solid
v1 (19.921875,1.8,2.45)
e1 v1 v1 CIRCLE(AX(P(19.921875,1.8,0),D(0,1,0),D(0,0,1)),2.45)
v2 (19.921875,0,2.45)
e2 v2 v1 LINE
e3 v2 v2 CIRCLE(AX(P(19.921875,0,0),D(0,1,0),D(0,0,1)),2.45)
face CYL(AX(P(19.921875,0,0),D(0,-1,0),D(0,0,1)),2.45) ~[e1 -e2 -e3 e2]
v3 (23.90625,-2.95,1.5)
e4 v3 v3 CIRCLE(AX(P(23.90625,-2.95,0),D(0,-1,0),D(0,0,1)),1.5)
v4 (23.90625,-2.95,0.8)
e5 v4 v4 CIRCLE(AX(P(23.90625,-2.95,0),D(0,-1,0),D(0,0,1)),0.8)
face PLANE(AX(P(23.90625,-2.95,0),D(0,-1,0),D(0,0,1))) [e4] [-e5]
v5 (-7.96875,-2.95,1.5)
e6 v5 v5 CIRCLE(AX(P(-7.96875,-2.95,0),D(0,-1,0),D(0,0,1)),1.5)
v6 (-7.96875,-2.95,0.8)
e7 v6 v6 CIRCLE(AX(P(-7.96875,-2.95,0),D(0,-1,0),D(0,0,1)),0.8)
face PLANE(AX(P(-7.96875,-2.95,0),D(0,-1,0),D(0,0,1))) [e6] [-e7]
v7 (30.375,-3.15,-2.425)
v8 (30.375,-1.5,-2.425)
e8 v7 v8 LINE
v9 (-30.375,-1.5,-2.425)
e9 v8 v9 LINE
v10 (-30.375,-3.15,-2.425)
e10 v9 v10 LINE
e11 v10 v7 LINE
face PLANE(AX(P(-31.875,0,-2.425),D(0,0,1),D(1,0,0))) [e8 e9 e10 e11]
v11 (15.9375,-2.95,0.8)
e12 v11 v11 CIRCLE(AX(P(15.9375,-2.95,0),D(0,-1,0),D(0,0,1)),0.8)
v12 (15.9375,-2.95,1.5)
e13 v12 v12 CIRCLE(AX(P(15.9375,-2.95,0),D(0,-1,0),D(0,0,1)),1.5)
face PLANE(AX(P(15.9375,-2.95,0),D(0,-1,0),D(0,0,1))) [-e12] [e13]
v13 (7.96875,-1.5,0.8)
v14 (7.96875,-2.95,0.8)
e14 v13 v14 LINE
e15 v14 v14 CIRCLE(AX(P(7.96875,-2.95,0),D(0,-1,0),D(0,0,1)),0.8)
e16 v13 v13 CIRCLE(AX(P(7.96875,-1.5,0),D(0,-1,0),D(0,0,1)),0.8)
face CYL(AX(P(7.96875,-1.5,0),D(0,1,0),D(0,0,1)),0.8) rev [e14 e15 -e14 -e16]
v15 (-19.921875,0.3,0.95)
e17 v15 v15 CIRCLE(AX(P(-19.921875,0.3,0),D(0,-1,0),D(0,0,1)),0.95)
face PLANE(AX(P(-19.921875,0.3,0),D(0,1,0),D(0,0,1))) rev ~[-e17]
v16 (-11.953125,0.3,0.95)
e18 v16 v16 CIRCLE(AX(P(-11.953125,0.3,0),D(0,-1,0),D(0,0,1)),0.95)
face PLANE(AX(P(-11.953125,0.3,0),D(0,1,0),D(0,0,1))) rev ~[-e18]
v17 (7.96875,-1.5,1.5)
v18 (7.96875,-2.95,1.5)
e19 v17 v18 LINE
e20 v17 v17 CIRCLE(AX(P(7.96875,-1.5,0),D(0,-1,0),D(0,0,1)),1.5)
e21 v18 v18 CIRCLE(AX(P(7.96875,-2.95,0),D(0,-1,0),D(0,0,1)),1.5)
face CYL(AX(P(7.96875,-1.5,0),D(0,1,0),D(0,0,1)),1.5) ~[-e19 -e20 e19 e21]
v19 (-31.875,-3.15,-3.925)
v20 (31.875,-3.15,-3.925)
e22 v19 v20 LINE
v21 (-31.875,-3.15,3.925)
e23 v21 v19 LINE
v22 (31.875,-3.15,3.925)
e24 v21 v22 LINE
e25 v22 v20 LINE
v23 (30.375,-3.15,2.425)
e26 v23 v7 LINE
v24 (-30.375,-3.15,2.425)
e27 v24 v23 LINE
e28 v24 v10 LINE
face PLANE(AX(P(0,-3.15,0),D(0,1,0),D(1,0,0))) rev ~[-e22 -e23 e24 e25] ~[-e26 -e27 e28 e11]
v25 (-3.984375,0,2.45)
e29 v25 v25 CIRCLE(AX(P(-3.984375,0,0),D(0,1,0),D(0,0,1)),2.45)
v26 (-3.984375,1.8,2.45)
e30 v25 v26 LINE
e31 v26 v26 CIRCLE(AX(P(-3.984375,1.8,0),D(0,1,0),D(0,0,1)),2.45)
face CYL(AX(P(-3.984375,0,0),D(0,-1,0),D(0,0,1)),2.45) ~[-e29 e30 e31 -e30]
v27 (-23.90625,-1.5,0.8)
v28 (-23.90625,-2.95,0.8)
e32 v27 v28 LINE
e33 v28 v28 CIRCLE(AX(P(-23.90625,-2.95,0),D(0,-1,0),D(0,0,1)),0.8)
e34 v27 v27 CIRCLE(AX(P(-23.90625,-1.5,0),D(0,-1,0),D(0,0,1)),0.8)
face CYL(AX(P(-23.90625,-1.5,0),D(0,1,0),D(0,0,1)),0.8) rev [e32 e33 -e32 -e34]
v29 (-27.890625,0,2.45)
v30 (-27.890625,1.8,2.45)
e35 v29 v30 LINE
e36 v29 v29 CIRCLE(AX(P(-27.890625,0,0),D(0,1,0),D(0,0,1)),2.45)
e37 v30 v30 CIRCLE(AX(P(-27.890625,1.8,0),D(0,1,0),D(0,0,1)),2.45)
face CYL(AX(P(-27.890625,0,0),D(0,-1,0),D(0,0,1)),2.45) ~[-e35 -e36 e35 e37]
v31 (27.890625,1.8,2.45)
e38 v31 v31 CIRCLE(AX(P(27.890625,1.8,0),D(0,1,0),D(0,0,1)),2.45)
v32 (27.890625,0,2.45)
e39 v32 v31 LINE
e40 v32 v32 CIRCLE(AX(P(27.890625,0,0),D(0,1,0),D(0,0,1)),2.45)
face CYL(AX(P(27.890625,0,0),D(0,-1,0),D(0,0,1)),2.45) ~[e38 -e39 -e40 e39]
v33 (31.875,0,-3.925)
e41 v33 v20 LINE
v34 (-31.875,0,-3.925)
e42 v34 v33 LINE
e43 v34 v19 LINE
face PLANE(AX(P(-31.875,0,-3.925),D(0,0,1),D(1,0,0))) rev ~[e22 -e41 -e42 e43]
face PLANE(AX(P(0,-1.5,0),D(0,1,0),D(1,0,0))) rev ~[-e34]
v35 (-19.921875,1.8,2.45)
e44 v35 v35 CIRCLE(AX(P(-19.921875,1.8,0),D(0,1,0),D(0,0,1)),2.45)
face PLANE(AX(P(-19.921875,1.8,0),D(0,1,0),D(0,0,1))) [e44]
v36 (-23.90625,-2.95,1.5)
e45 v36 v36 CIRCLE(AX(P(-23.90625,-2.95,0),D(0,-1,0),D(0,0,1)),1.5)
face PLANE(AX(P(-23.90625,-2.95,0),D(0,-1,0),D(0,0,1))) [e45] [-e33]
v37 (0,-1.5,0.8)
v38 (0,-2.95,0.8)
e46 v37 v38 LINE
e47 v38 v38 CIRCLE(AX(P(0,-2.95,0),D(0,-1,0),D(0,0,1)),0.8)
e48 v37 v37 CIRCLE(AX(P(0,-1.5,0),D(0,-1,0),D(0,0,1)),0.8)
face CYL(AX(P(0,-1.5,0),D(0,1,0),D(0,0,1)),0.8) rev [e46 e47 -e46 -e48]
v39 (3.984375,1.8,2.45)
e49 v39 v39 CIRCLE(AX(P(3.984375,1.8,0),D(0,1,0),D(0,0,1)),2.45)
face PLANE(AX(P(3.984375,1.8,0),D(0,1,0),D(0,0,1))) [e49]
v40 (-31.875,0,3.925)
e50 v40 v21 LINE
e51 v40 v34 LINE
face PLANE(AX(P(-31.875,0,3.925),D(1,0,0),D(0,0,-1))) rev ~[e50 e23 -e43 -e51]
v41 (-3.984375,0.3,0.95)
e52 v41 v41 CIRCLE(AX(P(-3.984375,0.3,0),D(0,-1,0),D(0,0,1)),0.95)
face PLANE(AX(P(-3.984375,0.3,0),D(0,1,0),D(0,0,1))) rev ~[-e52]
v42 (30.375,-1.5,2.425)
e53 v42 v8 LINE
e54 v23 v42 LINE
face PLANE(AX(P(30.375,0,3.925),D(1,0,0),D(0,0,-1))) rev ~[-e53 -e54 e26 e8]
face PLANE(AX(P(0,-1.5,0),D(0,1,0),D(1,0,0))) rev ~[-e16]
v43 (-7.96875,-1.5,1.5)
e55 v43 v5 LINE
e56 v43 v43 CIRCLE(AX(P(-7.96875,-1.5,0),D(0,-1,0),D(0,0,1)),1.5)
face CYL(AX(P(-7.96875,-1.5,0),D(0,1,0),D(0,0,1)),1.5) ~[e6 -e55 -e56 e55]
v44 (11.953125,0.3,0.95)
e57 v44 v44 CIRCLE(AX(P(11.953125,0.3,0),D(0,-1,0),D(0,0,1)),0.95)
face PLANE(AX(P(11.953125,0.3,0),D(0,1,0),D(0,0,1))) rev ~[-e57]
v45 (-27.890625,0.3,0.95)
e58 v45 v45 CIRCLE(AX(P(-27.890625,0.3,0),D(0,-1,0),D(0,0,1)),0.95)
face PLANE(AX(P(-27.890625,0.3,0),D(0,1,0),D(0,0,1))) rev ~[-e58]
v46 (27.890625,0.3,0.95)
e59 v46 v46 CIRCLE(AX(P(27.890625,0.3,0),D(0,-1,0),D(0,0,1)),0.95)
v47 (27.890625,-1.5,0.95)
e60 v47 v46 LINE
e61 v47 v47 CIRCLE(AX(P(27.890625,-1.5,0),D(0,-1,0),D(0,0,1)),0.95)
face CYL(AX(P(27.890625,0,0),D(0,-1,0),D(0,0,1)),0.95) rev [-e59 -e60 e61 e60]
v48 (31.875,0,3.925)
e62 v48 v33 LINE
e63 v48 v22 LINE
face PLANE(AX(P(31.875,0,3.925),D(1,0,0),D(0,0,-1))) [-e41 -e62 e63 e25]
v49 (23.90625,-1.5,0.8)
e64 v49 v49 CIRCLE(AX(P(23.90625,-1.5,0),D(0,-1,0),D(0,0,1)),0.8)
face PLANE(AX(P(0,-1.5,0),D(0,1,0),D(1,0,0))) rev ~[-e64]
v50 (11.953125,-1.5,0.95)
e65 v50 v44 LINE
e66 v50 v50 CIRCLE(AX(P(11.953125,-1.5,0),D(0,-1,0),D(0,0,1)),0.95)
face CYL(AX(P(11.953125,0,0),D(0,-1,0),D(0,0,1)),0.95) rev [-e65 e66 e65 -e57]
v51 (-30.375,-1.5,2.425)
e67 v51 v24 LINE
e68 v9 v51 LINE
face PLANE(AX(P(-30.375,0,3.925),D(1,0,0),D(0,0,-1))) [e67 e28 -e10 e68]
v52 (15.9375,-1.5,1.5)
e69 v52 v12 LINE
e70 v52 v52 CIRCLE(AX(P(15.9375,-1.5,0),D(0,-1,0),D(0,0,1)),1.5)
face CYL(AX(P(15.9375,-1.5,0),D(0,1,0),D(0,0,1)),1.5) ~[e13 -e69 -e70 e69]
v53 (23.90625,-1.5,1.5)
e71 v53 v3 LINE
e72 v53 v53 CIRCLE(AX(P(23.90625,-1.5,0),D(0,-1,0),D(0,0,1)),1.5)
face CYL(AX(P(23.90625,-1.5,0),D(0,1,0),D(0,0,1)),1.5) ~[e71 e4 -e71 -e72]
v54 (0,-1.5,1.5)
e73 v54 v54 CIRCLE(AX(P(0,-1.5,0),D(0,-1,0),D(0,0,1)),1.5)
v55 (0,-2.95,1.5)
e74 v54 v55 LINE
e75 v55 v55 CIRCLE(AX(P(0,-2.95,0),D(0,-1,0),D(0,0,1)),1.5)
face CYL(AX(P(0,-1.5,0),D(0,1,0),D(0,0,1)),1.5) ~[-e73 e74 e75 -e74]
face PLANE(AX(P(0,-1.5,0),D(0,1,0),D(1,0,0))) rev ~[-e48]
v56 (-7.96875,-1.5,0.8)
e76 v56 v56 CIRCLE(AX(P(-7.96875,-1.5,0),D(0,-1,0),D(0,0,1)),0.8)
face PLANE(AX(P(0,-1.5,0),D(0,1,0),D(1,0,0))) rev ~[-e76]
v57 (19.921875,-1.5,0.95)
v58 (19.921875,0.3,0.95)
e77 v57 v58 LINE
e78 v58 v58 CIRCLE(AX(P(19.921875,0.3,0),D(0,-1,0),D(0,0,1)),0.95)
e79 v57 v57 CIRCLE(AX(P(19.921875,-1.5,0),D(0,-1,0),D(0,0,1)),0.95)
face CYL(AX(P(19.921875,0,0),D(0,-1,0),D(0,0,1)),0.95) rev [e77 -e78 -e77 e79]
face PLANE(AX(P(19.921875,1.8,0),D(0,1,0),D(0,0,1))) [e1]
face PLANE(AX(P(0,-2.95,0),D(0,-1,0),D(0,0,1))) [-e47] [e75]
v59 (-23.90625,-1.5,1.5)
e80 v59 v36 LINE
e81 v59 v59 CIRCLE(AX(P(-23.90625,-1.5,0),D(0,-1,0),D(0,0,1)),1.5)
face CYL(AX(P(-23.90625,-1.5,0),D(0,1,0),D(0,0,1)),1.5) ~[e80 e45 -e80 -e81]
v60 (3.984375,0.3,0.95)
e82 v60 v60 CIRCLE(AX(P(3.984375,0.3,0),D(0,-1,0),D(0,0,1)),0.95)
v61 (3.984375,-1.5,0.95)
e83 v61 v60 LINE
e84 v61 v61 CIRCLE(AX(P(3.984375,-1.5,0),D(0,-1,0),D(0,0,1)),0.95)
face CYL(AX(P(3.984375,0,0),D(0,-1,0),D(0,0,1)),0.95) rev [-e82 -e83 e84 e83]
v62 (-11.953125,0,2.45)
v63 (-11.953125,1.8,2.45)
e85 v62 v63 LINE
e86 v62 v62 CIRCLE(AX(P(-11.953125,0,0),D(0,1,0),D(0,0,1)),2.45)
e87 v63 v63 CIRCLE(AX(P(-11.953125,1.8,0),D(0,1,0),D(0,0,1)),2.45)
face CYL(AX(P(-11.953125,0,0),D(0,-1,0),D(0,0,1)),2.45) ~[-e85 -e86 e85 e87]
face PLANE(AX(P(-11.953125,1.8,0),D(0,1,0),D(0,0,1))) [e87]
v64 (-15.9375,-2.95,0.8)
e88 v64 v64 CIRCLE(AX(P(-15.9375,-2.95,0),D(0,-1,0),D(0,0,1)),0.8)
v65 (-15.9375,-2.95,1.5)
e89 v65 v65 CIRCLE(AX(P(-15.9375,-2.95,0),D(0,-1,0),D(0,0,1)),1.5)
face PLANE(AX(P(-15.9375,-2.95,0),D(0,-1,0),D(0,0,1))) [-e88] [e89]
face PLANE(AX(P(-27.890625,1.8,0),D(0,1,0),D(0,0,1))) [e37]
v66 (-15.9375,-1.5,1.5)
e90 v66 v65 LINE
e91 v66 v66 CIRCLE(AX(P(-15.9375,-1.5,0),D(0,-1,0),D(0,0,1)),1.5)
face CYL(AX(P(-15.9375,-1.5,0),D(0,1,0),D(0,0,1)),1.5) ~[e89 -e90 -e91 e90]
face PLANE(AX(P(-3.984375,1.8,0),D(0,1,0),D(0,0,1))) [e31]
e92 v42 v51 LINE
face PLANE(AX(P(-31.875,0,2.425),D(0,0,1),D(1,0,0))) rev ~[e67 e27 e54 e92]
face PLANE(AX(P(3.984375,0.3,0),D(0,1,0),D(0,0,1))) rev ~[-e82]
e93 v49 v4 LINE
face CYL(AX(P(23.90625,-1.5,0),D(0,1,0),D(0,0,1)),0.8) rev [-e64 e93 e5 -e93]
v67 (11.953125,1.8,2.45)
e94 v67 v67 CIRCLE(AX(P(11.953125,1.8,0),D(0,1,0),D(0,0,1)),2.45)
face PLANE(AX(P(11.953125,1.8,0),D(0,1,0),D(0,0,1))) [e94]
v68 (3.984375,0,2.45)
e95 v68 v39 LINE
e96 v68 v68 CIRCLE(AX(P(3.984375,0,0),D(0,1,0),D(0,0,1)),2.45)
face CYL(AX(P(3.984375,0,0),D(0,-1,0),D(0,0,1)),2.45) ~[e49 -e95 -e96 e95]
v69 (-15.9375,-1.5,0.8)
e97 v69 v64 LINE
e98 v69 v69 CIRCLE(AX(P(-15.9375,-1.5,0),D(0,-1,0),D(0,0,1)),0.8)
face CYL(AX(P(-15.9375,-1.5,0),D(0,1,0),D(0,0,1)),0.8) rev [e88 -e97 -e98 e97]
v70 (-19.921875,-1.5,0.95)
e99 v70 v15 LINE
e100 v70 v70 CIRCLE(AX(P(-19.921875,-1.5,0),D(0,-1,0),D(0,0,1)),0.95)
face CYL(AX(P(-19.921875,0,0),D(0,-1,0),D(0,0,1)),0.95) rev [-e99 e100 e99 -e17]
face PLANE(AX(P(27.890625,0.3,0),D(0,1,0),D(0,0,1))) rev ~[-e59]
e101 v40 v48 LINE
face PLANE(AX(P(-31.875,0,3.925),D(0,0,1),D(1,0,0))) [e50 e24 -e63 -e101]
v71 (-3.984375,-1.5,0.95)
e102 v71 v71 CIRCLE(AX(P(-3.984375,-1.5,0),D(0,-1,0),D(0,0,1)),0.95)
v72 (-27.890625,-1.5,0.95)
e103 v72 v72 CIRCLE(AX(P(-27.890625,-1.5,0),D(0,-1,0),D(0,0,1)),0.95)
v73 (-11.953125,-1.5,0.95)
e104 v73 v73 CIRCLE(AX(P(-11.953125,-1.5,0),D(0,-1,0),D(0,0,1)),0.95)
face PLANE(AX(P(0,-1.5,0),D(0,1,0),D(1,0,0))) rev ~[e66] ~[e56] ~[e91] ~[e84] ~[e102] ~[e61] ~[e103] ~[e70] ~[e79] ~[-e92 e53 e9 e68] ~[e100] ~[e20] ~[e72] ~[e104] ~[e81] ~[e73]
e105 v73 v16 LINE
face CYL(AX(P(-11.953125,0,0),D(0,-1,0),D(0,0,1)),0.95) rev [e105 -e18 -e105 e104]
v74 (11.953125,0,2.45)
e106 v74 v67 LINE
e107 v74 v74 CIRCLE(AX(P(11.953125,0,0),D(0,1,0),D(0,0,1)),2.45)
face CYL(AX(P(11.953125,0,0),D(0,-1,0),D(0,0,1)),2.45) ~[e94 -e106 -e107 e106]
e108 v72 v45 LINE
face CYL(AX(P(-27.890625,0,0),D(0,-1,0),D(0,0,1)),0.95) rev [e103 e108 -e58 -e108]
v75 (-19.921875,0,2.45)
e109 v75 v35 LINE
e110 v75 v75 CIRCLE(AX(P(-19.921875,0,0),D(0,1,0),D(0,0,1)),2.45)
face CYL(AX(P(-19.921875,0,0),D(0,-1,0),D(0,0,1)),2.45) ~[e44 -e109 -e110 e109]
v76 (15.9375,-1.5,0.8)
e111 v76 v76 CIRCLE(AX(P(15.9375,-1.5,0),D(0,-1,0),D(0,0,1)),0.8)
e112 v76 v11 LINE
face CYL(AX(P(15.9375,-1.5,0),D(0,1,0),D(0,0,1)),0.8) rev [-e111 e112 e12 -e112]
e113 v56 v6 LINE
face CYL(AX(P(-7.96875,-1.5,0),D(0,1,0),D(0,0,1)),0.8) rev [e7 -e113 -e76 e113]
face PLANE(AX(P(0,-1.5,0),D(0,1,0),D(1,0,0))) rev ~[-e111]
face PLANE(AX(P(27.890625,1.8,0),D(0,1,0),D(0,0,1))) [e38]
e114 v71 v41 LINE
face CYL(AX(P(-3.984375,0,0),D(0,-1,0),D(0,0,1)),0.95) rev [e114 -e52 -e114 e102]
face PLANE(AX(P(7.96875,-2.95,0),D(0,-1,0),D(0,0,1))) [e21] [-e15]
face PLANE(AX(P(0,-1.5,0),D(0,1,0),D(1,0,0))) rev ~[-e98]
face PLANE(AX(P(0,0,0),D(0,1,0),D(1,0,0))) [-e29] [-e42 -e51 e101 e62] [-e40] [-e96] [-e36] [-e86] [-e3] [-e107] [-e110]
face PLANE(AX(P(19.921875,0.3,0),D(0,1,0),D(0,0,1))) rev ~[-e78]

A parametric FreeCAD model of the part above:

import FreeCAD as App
import Part
import Sketcher
Q = App.Units.Quantity


def faces_at(feature, points):
    """Names of the faces that lie closest to the given points."""
    faces = feature.Shape.Faces
    near = lambda p: min(range(len(faces)), key=lambda i: faces[i].distToShape(Part.Vertex(*p))[0])
    return sorted({f"Face{near(p) + 1}" for p in points})


def add_polygon(sketch, points):
    """Adds a closed chain of lines whose ends are joined by coincident constraints."""
    first, n = sketch.GeometryCount, len(points)
    for a, b in zip(points, points[1:] + points[:1]):
        sketch.addGeometry(Part.LineSegment(App.Vector(*a, 0), App.Vector(*b, 0)), False)
    for i in range(n):
        sketch.addConstraint(Sketcher.Constraint("Coincident", first + i, 2, first + (i + 1) % n, 1))

doc = App.newDocument("Part")
body = doc.addObject("PartDesign::Body", "Body")

sketch1 = body.newObject("Sketcher::SketchObject", "Sketch")
sketch1.AttachmentSupport = (doc.getObject("XZ_Plane"), [""])
sketch1.MapMode = "FlatFace"
add_polygon(sketch1, [(-31.875, -3.925), (-31.875, 3.925), (31.875, 3.925), (31.875, -3.925)])
sketch1.addConstraint(Sketcher.Constraint("Vertical", 0))
sketch1.addConstraint(Sketcher.Constraint("Horizontal", 1))
sketch1.addConstraint(Sketcher.Constraint("Vertical", 2))
sketch1.addConstraint(Sketcher.Constraint("Horizontal", 3))
sketch1.addConstraint(Sketcher.Constraint("Symmetric", 0, 2, 2, 2, -1, 1))
sketch1.addConstraint(Sketcher.Constraint("DistanceX", 1, 1, 1, 2, Q("63.75 mm")))
sketch1.addConstraint(Sketcher.Constraint("DistanceY", 0, 1, 0, 2, Q("7.85 mm")))
pad1 = body.newObject("PartDesign::Pad", "Pad")
pad1.Profile = sketch1
pad1.Length = 3.15

sketch2 = body.newObject("Sketcher::SketchObject", "Sketch001")
sketch2.AttachmentSupport = (doc.getObject("XZ_Plane"), [""])
sketch2.MapMode = "FlatFace"
sketch2.addGeometry(Part.Circle(App.Vector(-27.890625, 0, 0), App.Vector(0, 0, 1), 2.45), False)
sketch2.addGeometry(Part.Circle(App.Vector(-19.921875, 0, 0), App.Vector(0, 0, 1), 2.45), False)
sketch2.addGeometry(Part.Circle(App.Vector(-11.953125, 0, 0), App.Vector(0, 0, 1), 2.45), False)
sketch2.addGeometry(Part.Circle(App.Vector(-3.984375, 0, 0), App.Vector(0, 0, 1), 2.45), False)
sketch2.addGeometry(Part.Circle(App.Vector(3.984375, 0, 0), App.Vector(0, 0, 1), 2.45), False)
sketch2.addGeometry(Part.Circle(App.Vector(11.953125, 0, 0), App.Vector(0, 0, 1), 2.45), False)
sketch2.addGeometry(Part.Circle(App.Vector(19.921875, 0, 0), App.Vector(0, 0, 1), 2.45), False)
sketch2.addGeometry(Part.Circle(App.Vector(27.890625, 0, 0), App.Vector(0, 0, 1), 2.45), False)
sketch2.addConstraint(Sketcher.Constraint("Equal", 0, 1))
sketch2.addConstraint(Sketcher.Constraint("Equal", 1, 2))
sketch2.addConstraint(Sketcher.Constraint("Equal", 2, 3))
sketch2.addConstraint(Sketcher.Constraint("Equal", 3, 4))
sketch2.addConstraint(Sketcher.Constraint("Equal", 4, 5))
sketch2.addConstraint(Sketcher.Constraint("Equal", 5, 6))
sketch2.addConstraint(Sketcher.Constraint("Equal", 6, 7))
sketch2.addConstraint(Sketcher.Constraint("Symmetric", 3, 3, 4, 3, -1, 1))
sketch2.addConstraint(Sketcher.Constraint("Symmetric", 2, 3, 5, 3, -1, 1))
sketch2.addConstraint(Sketcher.Constraint("Symmetric", 1, 3, 6, 3, -1, 1))
sketch2.addConstraint(Sketcher.Constraint("Symmetric", 0, 3, 7, 3, -1, 1))
sketch2.addConstraint(Sketcher.Constraint("PointOnObject", 0, 3, -1))
sketch2.addConstraint(Sketcher.Constraint("PointOnObject", 1, 3, -1))
sketch2.addConstraint(Sketcher.Constraint("PointOnObject", 2, 3, -1))
sketch2.addConstraint(Sketcher.Constraint("PointOnObject", 3, 3, -1))
sketch2.addConstraint(Sketcher.Constraint("Diameter", 0, Q("4.9 mm")))
sketch2.addConstraint(Sketcher.Constraint("DistanceX", 0, 3, 4, 3, Q("31.875 mm")))
sketch2.addConstraint(Sketcher.Constraint("DistanceX", 1, 3, 5, 3, Q("31.875 mm")))
sketch2.addConstraint(Sketcher.Constraint("DistanceX", 0, 3, 2, 3, Q("15.9375 mm")))
sketch2.addConstraint(Sketcher.Constraint("DistanceX", 0, 3, 1, 3, Q("7.96875 mm")))
pad2 = body.newObject("PartDesign::Pad", "Pad001")
pad2.Profile = sketch2
pad2.Length = 1.8
pad2.Reversed = True
doc.recompute()

thickness = body.newObject("PartDesign::Thickness", "Thickness")
thickness.Base = (pad2, faces_at(pad2, [(0, -3.15, 0)]))
thickness.Value = 1.5
thickness.Reversed = True
thickness.Join = "Intersection"

sketch3 = body.newObject("Sketcher::SketchObject", "Sketch002")
sketch3.AttachmentSupport = (doc.getObject("XZ_Plane"), [""])
sketch3.MapMode = "FlatFace"
sketch3.AttachmentOffset = App.Placement(App.Vector(0, 0, 1.5), App.Rotation())
sketch3.addGeometry(Part.Circle(App.Vector(-23.90625, 0, 0), App.Vector(0, 0, 1), 1.5), False)
sketch3.addGeometry(Part.Circle(App.Vector(-23.90625, 0, 0), App.Vector(0, 0, 1), 0.8), False)
sketch3.addGeometry(Part.Circle(App.Vector(-15.9375, 0, 0), App.Vector(0, 0, 1), 1.5), False)
sketch3.addGeometry(Part.Circle(App.Vector(-15.9375, 0, 0), App.Vector(0, 0, 1), 0.8), False)
sketch3.addGeometry(Part.Circle(App.Vector(-7.96875, 0, 0), App.Vector(0, 0, 1), 1.5), False)
sketch3.addGeometry(Part.Circle(App.Vector(-7.96875, 0, 0), App.Vector(0, 0, 1), 0.8), False)
sketch3.addGeometry(Part.Circle(App.Vector(0, 0, 0), App.Vector(0, 0, 1), 1.5), False)
sketch3.addGeometry(Part.Circle(App.Vector(0, 0, 0), App.Vector(0, 0, 1), 0.8), False)
sketch3.addGeometry(Part.Circle(App.Vector(7.96875, 0, 0), App.Vector(0, 0, 1), 1.5), False)
sketch3.addGeometry(Part.Circle(App.Vector(7.96875, 0, 0), App.Vector(0, 0, 1), 0.8), False)
sketch3.addGeometry(Part.Circle(App.Vector(15.9375, 0, 0), App.Vector(0, 0, 1), 1.5), False)
sketch3.addGeometry(Part.Circle(App.Vector(15.9375, 0, 0), App.Vector(0, 0, 1), 0.8), False)
sketch3.addGeometry(Part.Circle(App.Vector(23.90625, 0, 0), App.Vector(0, 0, 1), 1.5), False)
sketch3.addGeometry(Part.Circle(App.Vector(23.90625, 0, 0), App.Vector(0, 0, 1), 0.8), False)
sketch3.addConstraint(Sketcher.Constraint("Coincident", 6, 3, -1, 1))
sketch3.addConstraint(Sketcher.Constraint("Coincident", 7, 3, -1, 1))
sketch3.addConstraint(Sketcher.Constraint("Coincident", 1, 3, 0, 3))
sketch3.addConstraint(Sketcher.Constraint("Coincident", 3, 3, 2, 3))
sketch3.addConstraint(Sketcher.Constraint("Coincident", 5, 3, 4, 3))
sketch3.addConstraint(Sketcher.Constraint("Coincident", 9, 3, 8, 3))
sketch3.addConstraint(Sketcher.Constraint("Coincident", 11, 3, 10, 3))
sketch3.addConstraint(Sketcher.Constraint("Coincident", 13, 3, 12, 3))
sketch3.addConstraint(Sketcher.Constraint("Equal", 0, 2))
sketch3.addConstraint(Sketcher.Constraint("Equal", 1, 3))
sketch3.addConstraint(Sketcher.Constraint("Equal", 2, 4))
sketch3.addConstraint(Sketcher.Constraint("Equal", 3, 5))
sketch3.addConstraint(Sketcher.Constraint("Equal", 4, 6))
sketch3.addConstraint(Sketcher.Constraint("Equal", 5, 7))
sketch3.addConstraint(Sketcher.Constraint("Equal", 6, 8))
sketch3.addConstraint(Sketcher.Constraint("Equal", 7, 9))
sketch3.addConstraint(Sketcher.Constraint("Equal", 8, 10))
sketch3.addConstraint(Sketcher.Constraint("Equal", 9, 11))
sketch3.addConstraint(Sketcher.Constraint("Equal", 10, 12))
sketch3.addConstraint(Sketcher.Constraint("Equal", 11, 13))
sketch3.addConstraint(Sketcher.Constraint("Symmetric", 4, 3, 8, 3, -1, 1))
sketch3.addConstraint(Sketcher.Constraint("Symmetric", 2, 3, 10, 3, -1, 1))
sketch3.addConstraint(Sketcher.Constraint("Symmetric", 0, 3, 12, 3, -1, 1))
sketch3.addConstraint(Sketcher.Constraint("PointOnObject", 0, 3, -1))
sketch3.addConstraint(Sketcher.Constraint("PointOnObject", 2, 3, -1))
sketch3.addConstraint(Sketcher.Constraint("PointOnObject", 4, 3, -1))
sketch3.addConstraint(Sketcher.Constraint("Diameter", 0, Q("3 mm")))
sketch3.addConstraint(Sketcher.Constraint("Diameter", 1, Q("1.6 mm")))
sketch3.addConstraint(Sketcher.Constraint("DistanceX", 2, 3, -1, 1, Q("15.9375 mm")))
sketch3.addConstraint(Sketcher.Constraint("DistanceX", 0, 3, 4, 3, Q("15.9375 mm")))
sketch3.addConstraint(Sketcher.Constraint("DistanceX", 4, 3, 8, 3, Q("15.9375 mm")))
pad3 = body.newObject("PartDesign::Pad", "Pad002")
pad3.Profile = sketch3
pad3.Length = 1.45

doc.recompute()
